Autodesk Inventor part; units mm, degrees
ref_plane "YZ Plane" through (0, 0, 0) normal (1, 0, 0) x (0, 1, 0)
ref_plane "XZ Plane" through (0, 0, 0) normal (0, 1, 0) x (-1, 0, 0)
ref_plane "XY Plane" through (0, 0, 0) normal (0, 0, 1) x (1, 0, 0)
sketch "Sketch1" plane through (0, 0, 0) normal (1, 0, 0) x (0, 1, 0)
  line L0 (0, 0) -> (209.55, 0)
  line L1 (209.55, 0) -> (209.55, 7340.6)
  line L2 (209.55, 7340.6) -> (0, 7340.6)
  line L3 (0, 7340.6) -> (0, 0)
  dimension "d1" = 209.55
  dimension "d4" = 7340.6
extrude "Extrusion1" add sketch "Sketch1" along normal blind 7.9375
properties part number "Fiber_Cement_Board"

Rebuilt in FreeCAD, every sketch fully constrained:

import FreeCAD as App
import Part
import Sketcher
Q = App.Units.Quantity

doc = App.newDocument("Part")
body = doc.addObject("PartDesign::Body", "Body")

sketch1 = body.newObject("Sketcher::SketchObject", "Sketch")
sketch1.AttachmentSupport = (doc.getObject("YZ_Plane"), [""])
sketch1.MapMode = "FlatFace"
sketch1.addGeometry([
    Part.LineSegment(App.Vector(0, 7341, 0), App.Vector(0, 0, 0)),
    Part.LineSegment(App.Vector(0, 0, 0), App.Vector(210, 0, 0)),
    Part.LineSegment(App.Vector(210, 0, 0), App.Vector(210, 7341, 0)),
    Part.LineSegment(App.Vector(210, 7341, 0), App.Vector(0, 7341, 0)),
], False)
sketch1.addConstraint([
    Sketcher.Constraint("Coincident", 0, 2, 1, 1),
    Sketcher.Constraint("Coincident", 1, 2, 2, 1),
    Sketcher.Constraint("Coincident", 2, 2, 3, 1),
    Sketcher.Constraint("Coincident", 3, 2, 0, 1),
    Sketcher.Constraint("Vertical", 0),
    Sketcher.Constraint("Horizontal", 1),
    Sketcher.Constraint("Vertical", 2),
    Sketcher.Constraint("Horizontal", 3),
    Sketcher.Constraint("Coincident", 0, 2, -1, 1),
    Sketcher.Constraint("DistanceY", 0, 2, 0, 1, Q("289 in")),
    Sketcher.Constraint("DistanceX", 1, 1, 1, 2, Q("8.25 in")),
])
pad1 = body.newObject("PartDesign::Pad", "Pad")
pad1.Profile = sketch1
pad1.Length = Q("0.3125 in")

doc.recompute()
